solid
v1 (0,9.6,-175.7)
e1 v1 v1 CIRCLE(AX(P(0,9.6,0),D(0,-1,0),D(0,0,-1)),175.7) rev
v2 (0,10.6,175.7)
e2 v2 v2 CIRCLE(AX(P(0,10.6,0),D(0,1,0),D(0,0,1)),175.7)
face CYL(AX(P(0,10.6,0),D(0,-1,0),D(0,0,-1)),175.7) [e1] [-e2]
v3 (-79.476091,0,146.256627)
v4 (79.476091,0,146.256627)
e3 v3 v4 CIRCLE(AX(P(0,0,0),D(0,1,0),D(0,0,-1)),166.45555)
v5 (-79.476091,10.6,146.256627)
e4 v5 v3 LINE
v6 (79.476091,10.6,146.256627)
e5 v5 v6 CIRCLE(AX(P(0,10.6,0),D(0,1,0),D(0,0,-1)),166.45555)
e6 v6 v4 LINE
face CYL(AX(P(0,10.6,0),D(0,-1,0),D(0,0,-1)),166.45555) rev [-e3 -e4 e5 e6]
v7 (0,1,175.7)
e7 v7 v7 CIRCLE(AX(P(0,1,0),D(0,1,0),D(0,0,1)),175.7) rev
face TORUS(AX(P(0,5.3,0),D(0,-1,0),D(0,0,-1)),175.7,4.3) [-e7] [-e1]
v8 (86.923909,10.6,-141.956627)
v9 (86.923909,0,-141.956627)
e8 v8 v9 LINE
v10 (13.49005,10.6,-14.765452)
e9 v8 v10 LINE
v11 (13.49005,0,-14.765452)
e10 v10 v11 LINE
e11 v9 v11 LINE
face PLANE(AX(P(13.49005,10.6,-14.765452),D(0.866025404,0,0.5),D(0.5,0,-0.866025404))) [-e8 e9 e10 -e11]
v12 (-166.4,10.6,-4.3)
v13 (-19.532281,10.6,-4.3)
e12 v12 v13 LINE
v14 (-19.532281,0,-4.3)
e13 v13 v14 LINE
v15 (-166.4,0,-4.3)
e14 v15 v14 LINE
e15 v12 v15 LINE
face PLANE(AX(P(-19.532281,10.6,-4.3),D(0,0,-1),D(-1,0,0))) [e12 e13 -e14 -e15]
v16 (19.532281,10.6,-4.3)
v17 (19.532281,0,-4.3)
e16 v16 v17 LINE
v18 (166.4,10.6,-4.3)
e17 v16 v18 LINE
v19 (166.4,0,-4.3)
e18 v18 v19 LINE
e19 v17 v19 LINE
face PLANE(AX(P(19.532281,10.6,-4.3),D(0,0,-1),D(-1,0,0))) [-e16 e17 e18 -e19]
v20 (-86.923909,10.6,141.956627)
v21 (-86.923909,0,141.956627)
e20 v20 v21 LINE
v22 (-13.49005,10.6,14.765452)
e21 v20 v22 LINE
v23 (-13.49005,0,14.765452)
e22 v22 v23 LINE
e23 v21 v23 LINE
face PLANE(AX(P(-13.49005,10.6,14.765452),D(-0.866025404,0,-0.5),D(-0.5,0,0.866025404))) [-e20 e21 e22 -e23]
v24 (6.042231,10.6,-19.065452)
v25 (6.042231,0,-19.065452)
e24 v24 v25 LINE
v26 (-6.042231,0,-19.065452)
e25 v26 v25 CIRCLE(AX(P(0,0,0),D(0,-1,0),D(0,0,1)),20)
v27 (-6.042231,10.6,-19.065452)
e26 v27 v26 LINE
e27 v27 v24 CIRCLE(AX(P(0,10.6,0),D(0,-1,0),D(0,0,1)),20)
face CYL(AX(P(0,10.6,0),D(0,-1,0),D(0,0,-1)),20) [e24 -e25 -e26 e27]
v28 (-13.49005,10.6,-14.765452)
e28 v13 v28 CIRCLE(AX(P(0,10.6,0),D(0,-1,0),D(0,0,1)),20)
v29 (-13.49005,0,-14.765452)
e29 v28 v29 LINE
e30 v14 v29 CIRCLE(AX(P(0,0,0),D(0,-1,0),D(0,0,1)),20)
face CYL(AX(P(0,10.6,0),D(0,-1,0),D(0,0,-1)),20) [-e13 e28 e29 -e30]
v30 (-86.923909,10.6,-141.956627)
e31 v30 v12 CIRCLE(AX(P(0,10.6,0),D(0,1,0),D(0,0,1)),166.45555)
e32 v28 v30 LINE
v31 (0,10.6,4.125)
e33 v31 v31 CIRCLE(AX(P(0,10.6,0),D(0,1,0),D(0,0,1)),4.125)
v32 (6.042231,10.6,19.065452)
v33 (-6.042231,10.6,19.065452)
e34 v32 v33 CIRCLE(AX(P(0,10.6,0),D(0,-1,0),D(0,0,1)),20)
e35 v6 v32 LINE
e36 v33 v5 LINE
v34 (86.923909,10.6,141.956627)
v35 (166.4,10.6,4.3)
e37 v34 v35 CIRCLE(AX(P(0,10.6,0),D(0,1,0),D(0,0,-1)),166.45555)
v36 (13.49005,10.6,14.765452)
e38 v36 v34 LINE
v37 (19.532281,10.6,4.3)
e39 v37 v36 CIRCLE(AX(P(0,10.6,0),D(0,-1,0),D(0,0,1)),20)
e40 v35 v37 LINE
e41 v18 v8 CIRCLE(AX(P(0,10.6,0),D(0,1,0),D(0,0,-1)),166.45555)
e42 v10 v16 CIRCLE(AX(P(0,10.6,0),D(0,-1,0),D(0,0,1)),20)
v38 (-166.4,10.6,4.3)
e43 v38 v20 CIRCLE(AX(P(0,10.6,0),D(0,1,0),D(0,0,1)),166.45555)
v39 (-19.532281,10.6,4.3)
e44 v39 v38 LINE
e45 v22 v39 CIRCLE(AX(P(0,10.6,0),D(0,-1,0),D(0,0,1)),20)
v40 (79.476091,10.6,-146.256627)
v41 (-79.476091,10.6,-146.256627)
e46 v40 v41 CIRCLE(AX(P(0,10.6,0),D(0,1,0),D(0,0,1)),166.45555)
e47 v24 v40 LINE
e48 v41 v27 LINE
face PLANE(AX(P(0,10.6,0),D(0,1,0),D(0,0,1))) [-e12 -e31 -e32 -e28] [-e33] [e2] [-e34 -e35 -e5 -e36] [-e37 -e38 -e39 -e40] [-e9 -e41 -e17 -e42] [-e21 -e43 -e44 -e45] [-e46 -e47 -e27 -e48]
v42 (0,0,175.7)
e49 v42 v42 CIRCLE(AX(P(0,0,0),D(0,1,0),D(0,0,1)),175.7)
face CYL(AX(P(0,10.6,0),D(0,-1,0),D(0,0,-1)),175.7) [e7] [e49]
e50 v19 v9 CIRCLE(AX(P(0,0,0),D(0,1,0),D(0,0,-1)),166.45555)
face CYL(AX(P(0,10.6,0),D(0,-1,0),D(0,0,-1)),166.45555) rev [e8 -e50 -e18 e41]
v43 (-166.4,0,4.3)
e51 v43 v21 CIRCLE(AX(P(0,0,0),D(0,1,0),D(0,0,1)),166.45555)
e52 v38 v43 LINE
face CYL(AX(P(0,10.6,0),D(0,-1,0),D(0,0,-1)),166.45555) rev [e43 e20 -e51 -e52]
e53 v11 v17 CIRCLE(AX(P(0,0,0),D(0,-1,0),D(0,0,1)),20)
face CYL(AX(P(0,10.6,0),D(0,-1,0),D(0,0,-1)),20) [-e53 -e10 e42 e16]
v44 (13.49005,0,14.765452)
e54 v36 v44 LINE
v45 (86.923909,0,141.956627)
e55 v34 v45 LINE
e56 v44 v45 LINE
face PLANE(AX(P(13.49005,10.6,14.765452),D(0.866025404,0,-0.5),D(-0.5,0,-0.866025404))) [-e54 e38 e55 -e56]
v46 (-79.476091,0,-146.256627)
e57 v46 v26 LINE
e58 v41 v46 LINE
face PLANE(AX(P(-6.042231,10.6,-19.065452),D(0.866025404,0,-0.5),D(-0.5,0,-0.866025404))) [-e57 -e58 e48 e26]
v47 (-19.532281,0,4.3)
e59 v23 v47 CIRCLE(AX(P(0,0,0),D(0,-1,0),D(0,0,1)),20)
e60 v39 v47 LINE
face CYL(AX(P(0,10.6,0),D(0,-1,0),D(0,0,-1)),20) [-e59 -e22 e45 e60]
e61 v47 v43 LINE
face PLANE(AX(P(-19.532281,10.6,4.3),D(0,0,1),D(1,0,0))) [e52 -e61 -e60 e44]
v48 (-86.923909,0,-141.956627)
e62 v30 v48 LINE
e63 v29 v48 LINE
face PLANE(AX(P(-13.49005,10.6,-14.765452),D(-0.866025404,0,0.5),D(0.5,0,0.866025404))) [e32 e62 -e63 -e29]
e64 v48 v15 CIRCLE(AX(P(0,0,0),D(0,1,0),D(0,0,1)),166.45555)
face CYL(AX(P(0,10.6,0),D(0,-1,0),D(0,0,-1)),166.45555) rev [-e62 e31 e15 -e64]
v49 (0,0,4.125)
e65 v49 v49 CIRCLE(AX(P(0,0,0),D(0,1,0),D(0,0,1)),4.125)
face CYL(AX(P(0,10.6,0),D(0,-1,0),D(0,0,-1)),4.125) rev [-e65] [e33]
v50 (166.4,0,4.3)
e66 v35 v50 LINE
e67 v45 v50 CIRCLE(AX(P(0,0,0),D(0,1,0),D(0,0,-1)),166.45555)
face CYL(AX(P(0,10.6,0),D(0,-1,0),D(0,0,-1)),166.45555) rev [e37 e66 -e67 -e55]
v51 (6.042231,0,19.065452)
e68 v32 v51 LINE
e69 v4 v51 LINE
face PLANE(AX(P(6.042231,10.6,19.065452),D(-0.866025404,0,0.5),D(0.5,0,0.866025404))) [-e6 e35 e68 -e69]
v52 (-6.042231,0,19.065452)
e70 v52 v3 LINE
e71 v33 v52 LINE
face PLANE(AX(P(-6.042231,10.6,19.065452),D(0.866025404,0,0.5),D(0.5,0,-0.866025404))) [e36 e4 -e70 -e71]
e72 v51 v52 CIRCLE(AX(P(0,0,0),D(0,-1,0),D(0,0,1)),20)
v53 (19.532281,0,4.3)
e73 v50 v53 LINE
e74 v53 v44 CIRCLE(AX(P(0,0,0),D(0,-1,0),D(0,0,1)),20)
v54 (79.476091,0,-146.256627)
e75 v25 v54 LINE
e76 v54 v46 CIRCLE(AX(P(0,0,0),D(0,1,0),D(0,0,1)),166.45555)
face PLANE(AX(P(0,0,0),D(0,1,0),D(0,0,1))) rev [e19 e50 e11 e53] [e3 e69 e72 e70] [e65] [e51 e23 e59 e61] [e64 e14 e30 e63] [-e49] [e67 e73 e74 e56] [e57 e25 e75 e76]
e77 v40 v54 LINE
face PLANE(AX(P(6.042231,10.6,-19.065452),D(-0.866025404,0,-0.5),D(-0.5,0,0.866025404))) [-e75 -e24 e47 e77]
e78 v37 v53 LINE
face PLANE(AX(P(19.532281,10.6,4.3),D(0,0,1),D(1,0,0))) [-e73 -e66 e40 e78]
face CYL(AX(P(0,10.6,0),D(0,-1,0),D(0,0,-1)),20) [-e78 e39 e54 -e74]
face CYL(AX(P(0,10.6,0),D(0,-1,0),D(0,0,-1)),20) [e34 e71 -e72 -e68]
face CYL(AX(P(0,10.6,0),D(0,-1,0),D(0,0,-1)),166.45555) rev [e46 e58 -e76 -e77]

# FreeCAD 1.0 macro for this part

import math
import FreeCAD as App
import Part
import Sketcher
Q = App.Units.Quantity

doc = App.newDocument("Part")
body = doc.addObject("PartDesign::Body", "Body")

# Sketch on XZ plane
sketch1 = body.newObject("Sketcher::SketchObject", "Sketch")
sketch1.AttachmentSupport = (doc.getObject("XZ_Plane"), [""])
sketch1.MapMode = "FlatFace"
sketch1.addGeometry([
    Part.Circle(App.Vector(0, 0, 0), App.Vector(0, 0, 1), 175.7),  # 0
    Part.ArcOfCircle(Part.Circle(App.Vector(0, 0, 0), App.Vector(0, 0, 1), 20), math.radians(-168), math.radians(-132)),  # 1
    Part.LineSegment(App.Vector(-19.5, -4.3, 0), App.Vector(-166.4, -4.3, 0)),  # 2
    Part.ArcOfCircle(Part.Circle(App.Vector(0, 0, 0), App.Vector(0, 0, 1), 166.5), math.radians(-179), math.radians(-121)),  # 3
    Part.LineSegment(App.Vector(-86.9, -142, 0), App.Vector(-13.5, -14.8, 0)),  # 4
    Part.ArcOfCircle(Part.Circle(App.Vector(0, 0, 0), App.Vector(0, 0, 1), 20), math.radians(-108), math.radians(-72)),  # 5
    Part.LineSegment(App.Vector(-6, -19.1, 0), App.Vector(-79.5, -146.3, 0)),  # 6
    Part.ArcOfCircle(Part.Circle(App.Vector(0, 0, 0), App.Vector(0, 0, 1), 166.5), math.radians(-119), math.radians(-61)),  # 7
    Part.LineSegment(App.Vector(79.5, -146.3, 0), App.Vector(6, -19.1, 0)),  # 8
    Part.LineSegment(App.Vector(-166.4, 4.3, 0), App.Vector(-19.5, 4.3, 0)),  # 9
    Part.ArcOfCircle(Part.Circle(App.Vector(0, 0, 0), App.Vector(0, 0, 1), 20), math.radians(132), math.radians(168)),  # 10
    Part.LineSegment(App.Vector(-13.5, 14.8, 0), App.Vector(-86.9, 142, 0)),  # 11
    Part.ArcOfCircle(Part.Circle(App.Vector(0, 0, 0), App.Vector(0, 0, 1), 166.5), math.radians(121), math.radians(179)),  # 12
    Part.ArcOfCircle(Part.Circle(App.Vector(0, 0, 0), App.Vector(0, 0, 1), 20), math.radians(-48), math.radians(-12)),  # 13
    Part.LineSegment(App.Vector(13.5, -14.8, 0), App.Vector(86.9, -142, 0)),  # 14
    Part.ArcOfCircle(Part.Circle(App.Vector(0, 0, 0), App.Vector(0, 0, 1), 166.5), math.radians(-59), math.radians(-1)),  # 15
    Part.LineSegment(App.Vector(166.4, -4.3, 0), App.Vector(19.5, -4.3, 0)),  # 16
    Part.Circle(App.Vector(0, 0, 0), App.Vector(0, 0, 1), 4.1),  # 17
    Part.ArcOfCircle(Part.Circle(App.Vector(0, 0, 0), App.Vector(0, 0, 1), 20), math.radians(72), math.radians(108)),  # 18
    Part.LineSegment(App.Vector(6, 19.1, 0), App.Vector(79.5, 146.3, 0)),  # 19
    Part.ArcOfCircle(Part.Circle(App.Vector(0, 0, 0), App.Vector(0, 0, 1), 166.5), math.radians(61), math.radians(119)),  # 20
    Part.LineSegment(App.Vector(-79.5, 146.3, 0), App.Vector(-6, 19.1, 0)),  # 21
    Part.ArcOfCircle(Part.Circle(App.Vector(0, 0, 0), App.Vector(0, 0, 1), 20), math.radians(12), math.radians(48)),  # 22
    Part.LineSegment(App.Vector(19.5, 4.3, 0), App.Vector(166.4, 4.3, 0)),  # 23
    Part.ArcOfCircle(Part.Circle(App.Vector(0, 0, 0), App.Vector(0, 0, 1), 166.5), math.radians(1), math.radians(59)),  # 24
    Part.LineSegment(App.Vector(86.9, 142, 0), App.Vector(13.5, 14.8, 0)),  # 25
], False)
sketch1.addConstraint([
    Sketcher.Constraint("Coincident", 1, 1, 2, 1),
    Sketcher.Constraint("Coincident", 2, 2, 3, 1),
    Sketcher.Constraint("Coincident", 3, 2, 4, 1),
    Sketcher.Constraint("Coincident", 4, 2, 1, 2),
    Sketcher.Constraint("Coincident", 5, 1, 6, 1),
    Sketcher.Constraint("Coincident", 6, 2, 7, 1),
    Sketcher.Constraint("Coincident", 7, 2, 8, 1),
    Sketcher.Constraint("Coincident", 8, 2, 5, 2),
    Sketcher.Constraint("Coincident", 9, 2, 10, 2),
    Sketcher.Constraint("Coincident", 10, 1, 11, 1),
    Sketcher.Constraint("Coincident", 11, 2, 12, 1),
    Sketcher.Constraint("Coincident", 12, 2, 9, 1),
    Sketcher.Constraint("Coincident", 13, 1, 14, 1),
    Sketcher.Constraint("Coincident", 14, 2, 15, 1),
    Sketcher.Constraint("Coincident", 15, 2, 16, 1),
    Sketcher.Constraint("Coincident", 16, 2, 13, 2),
    Sketcher.Constraint("Coincident", 18, 1, 19, 1),
    Sketcher.Constraint("Coincident", 19, 2, 20, 1),
    Sketcher.Constraint("Coincident", 20, 2, 21, 1),
    Sketcher.Constraint("Coincident", 21, 2, 18, 2),
    Sketcher.Constraint("Coincident", 22, 1, 23, 1),
    Sketcher.Constraint("Coincident", 23, 2, 24, 1),
    Sketcher.Constraint("Coincident", 24, 2, 25, 1),
    Sketcher.Constraint("Coincident", 25, 2, 22, 2),
    Sketcher.Constraint("Horizontal", 2),
    Sketcher.Constraint("Horizontal", 9),
    Sketcher.Constraint("Horizontal", 16),
    Sketcher.Constraint("Horizontal", 23),
    Sketcher.Constraint("Coincident", 0, 3, -1, 1),
    Sketcher.Constraint("Coincident", 1, 3, -1, 1),
    Sketcher.Constraint("Coincident", 3, 3, -1, 1),
    Sketcher.Constraint("Coincident", 5, 3, -1, 1),
    Sketcher.Constraint("Coincident", 7, 3, -1, 1),
    Sketcher.Constraint("Coincident", 10, 3, -1, 1),
    Sketcher.Constraint("Coincident", 12, 3, -1, 1),
    Sketcher.Constraint("Coincident", 13, 3, -1, 1),
    Sketcher.Constraint("Coincident", 15, 3, -1, 1),
    Sketcher.Constraint("Coincident", 17, 3, -1, 1),
    Sketcher.Constraint("Coincident", 18, 3, -1, 1),
    Sketcher.Constraint("Coincident", 20, 3, -1, 1),
    Sketcher.Constraint("Coincident", 22, 3, -1, 1),
    Sketcher.Constraint("Coincident", 24, 3, -1, 1),
    Sketcher.Constraint("Equal", 1, 5),
    Sketcher.Constraint("Equal", 3, 7),
    Sketcher.Constraint("Equal", 5, 10),
    Sketcher.Constraint("Equal", 7, 12),
    Sketcher.Constraint("Equal", 10, 13),
    Sketcher.Constraint("Equal", 12, 15),
    Sketcher.Constraint("Equal", 13, 18),
    Sketcher.Constraint("Equal", 15, 20),
    Sketcher.Constraint("Equal", 18, 22),
    Sketcher.Constraint("Equal", 20, 24),
    Sketcher.Constraint("Parallel", 4, 6),
    Sketcher.Constraint("Parallel", 8, 11),
    Sketcher.Constraint("Parallel", 11, 14),
    Sketcher.Constraint("Parallel", 6, 19),
    Sketcher.Constraint("Parallel", 14, 21),
    Sketcher.Constraint("Parallel", 19, 25),
    Sketcher.Constraint("Horizontal", 6, 2, 7, 2),
    Sketcher.Constraint("Horizontal", 5, 1, 8, 2),
    Sketcher.Constraint("Horizontal", 4, 2, 13, 1),
    Sketcher.Constraint("Horizontal", 2, 2, 15, 2),
    Sketcher.Constraint("Horizontal", 19, 2, 20, 2),
    Sketcher.Constraint("Horizontal", 12, 2, 22, 1),
    Sketcher.Constraint("Horizontal", 11, 2, 24, 2),
    Sketcher.Constraint("Vertical", 1, 1, 9, 2),
    Sketcher.Constraint("Vertical", 4, 2, 10, 1),
    Sketcher.Constraint("Vertical", 8, 2, 18, 1),
    Sketcher.Constraint("Equal", 4, 6),
    Sketcher.Constraint("Radius", 1, Q("20 mm")),
    Sketcher.Constraint("Diameter", 0, Q("351.4 mm")),
    Sketcher.Constraint("Diameter", 17, Q("8.25 mm")),
    Sketcher.Constraint("Angle", 4, Q("60 deg")),
    Sketcher.Constraint("DistanceY", 1, 1, -1, 1, Q("4.3 mm")),
    Sketcher.Constraint("DistanceX", 2, 2, -1, 1, Q("166.4 mm")),
    Sketcher.Constraint("DistanceY", 5, 1, 4, 2, Q("4.3 mm")),
])
pad1 = body.newObject("PartDesign::Pad", "Pad")
pad1.Profile = sketch1
pad1.Length = 10.6
pad1.Reversed = True

# Sketch on XY plane
sketch2 = body.newObject("Sketcher::SketchObject", "Sketch001")
sketch2.AttachmentSupport = (doc.getObject("XY_Plane"), [""])
sketch2.MapMode = "FlatFace"
sketch2.addGeometry(Part.Circle(App.Vector(175.7, 5.3, 0), App.Vector(0, 0, 1), 4.3), False)
sketch2.addConstraint([
    Sketcher.Constraint("Diameter", 0, Q("8.6 mm")),
    Sketcher.Constraint("DistanceX", -1, 1, 0, 3, Q("175.7 mm")),
    Sketcher.Constraint("DistanceY", -1, 1, 0, 3, Q("5.3 mm")),
])
groove = body.newObject("PartDesign::Groove", "Groove")
groove.Profile = sketch2
groove.ReferenceAxis = (sketch2, ["V_Axis"])
groove.Angle = 360

# Sketch on YZ plane
sketch3 = body.newObject("Sketcher::SketchObject", "Sketch002")
sketch3.AttachmentSupport = (doc.getObject("YZ_Plane"), [""])
sketch3.MapMode = "FlatFace"
sketch3.addGeometry(Part.Circle(App.Vector(5.3, -175.7, 0), App.Vector(0, 0, 1), 4.3), False)
sketch3.addConstraint([
    Sketcher.Constraint("Diameter", 0, Q("8.6 mm")),
    Sketcher.Constraint("DistanceX", -1, 1, 0, 3, Q("5.3 mm")),
    Sketcher.Constraint("DistanceY", 0, 3, -1, 1, Q("175.7 mm")),
])
revolution = body.newObject("PartDesign::Revolution", "Revolution")
revolution.Profile = sketch3
revolution.ReferenceAxis = (sketch3, ["H_Axis"])
revolution.Angle = 360

doc.recompute()
